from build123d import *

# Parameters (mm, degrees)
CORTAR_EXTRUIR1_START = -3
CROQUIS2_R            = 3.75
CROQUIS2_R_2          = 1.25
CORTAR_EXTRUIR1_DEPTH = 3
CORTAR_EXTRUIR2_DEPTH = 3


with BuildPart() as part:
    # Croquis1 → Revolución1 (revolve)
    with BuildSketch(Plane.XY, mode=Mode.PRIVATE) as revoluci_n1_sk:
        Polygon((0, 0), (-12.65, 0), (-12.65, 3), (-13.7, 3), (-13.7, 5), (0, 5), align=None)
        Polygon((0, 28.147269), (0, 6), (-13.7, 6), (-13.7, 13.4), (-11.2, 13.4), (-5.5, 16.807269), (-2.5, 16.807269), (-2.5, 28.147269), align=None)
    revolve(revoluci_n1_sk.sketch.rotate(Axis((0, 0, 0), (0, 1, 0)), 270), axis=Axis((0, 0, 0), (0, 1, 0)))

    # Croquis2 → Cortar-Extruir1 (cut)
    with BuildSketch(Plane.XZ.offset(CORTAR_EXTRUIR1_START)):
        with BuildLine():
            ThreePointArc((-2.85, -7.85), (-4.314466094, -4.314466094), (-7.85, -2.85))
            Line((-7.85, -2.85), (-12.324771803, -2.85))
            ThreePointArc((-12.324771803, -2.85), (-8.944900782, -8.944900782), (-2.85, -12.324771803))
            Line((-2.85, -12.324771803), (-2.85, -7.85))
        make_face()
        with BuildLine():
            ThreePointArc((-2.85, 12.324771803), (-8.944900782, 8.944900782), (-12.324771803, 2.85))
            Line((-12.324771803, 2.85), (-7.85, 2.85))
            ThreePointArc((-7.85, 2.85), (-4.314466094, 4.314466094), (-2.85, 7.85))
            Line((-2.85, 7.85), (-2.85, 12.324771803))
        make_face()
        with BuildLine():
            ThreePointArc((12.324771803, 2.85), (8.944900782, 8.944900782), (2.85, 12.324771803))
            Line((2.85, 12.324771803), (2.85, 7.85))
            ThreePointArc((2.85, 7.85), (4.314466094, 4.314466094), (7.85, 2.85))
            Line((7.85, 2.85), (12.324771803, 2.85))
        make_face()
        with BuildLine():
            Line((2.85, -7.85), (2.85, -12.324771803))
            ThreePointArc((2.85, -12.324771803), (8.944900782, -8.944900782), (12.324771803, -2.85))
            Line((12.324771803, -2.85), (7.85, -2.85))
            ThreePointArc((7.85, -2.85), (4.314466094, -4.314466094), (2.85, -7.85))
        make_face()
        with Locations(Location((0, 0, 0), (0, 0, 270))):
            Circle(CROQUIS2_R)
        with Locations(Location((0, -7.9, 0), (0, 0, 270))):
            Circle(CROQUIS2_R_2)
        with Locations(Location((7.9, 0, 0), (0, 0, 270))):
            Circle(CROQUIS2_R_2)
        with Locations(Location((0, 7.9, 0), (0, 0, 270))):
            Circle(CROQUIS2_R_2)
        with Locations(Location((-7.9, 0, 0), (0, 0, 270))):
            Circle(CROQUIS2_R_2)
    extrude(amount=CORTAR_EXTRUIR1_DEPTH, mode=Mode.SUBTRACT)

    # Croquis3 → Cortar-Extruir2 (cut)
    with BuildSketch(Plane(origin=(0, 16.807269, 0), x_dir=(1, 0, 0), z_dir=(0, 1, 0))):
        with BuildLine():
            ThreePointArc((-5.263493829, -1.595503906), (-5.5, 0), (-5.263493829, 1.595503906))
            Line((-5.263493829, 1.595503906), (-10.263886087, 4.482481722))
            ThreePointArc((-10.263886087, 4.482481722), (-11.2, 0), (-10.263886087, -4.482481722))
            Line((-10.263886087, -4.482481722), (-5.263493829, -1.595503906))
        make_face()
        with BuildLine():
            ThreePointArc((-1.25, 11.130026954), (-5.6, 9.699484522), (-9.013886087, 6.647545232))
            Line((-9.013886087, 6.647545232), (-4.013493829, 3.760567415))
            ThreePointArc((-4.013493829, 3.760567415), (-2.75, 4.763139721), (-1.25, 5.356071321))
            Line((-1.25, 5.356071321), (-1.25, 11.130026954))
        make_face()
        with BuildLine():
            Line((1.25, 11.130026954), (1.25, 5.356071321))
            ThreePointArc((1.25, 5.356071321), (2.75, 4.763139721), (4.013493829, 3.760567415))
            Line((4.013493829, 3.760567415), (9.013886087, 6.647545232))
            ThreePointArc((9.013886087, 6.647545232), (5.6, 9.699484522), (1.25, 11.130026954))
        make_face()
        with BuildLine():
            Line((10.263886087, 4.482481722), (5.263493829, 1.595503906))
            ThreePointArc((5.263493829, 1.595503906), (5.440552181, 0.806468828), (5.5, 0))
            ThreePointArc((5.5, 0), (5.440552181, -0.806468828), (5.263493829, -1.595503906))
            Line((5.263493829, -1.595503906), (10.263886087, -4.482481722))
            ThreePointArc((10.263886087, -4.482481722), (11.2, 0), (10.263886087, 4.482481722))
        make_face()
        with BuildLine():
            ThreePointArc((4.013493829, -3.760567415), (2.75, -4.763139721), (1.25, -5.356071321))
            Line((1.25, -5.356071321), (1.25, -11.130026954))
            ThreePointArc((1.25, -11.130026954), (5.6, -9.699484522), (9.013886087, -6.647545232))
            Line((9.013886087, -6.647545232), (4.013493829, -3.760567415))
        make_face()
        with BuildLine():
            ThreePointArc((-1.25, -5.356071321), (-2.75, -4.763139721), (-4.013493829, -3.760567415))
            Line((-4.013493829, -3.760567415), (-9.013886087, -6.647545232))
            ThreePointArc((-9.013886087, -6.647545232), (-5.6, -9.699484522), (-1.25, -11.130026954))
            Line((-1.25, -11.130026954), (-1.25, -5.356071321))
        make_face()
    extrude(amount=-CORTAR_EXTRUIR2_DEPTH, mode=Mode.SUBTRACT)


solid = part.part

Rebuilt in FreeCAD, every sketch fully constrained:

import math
import FreeCAD as App
import Part
import Sketcher

V = App.Vector
Q = App.Units.Quantity

doc = App.newDocument("Part")
body = doc.addObject("PartDesign::Body", "Body")
body.AllowCompound = True

# Sketch on XY plane
sketch1 = body.newObject("Sketcher::SketchObject", "Sketch")
sketch1.AttachmentSupport = (doc.getObject("XY_Plane"), [""])
sketch1.MapMode = "FlatFace"
sketch1.addGeometry(Part.LineSegment(V(-12.7, 0, 0), V(0, 0, 0)), False)
sketch1.addGeometry(Part.LineSegment(V(0, 0, 0), V(0, 5, 0)), False)
sketch1.addGeometry(Part.LineSegment(V(0, 5, 0), V(-13.7, 5, 0)), False)
sketch1.addGeometry(Part.LineSegment(V(-13.7, 5, 0), V(-13.7, 3, 0)), False)
sketch1.addGeometry(Part.LineSegment(V(-13.7, 3, 0), V(-12.7, 3, 0)), False)
sketch1.addGeometry(Part.LineSegment(V(-12.7, 3, 0), V(-12.7, 0, 0)), False)
sketch1.addGeometry(Part.LineSegment(V(0, 6, 0), V(0, 28.1, 0)), False)
sketch1.addGeometry(Part.LineSegment(V(0, 28.1, 0), V(-2.5, 28.1, 0)), False)
sketch1.addGeometry(Part.LineSegment(V(-2.5, 28.1, 0), V(-2.5, 16.8, 0)), False)
sketch1.addGeometry(Part.LineSegment(V(-2.5, 16.8, 0), V(-5.5, 16.8, 0)), False)
sketch1.addGeometry(Part.LineSegment(V(-5.5, 16.8, 0), V(-11.2, 13.4, 0)), False)
sketch1.addGeometry(Part.LineSegment(V(-11.2, 13.4, 0), V(-13.7, 13.4, 0)), False)
sketch1.addGeometry(Part.LineSegment(V(-13.7, 13.4, 0), V(-13.7, 6, 0)), False)
sketch1.addGeometry(Part.LineSegment(V(-13.7, 6, 0), V(0, 6, 0)), False)
sketch1.addConstraint(Sketcher.Constraint("Coincident", 0, 2, 1, 1))
sketch1.addConstraint(Sketcher.Constraint("Coincident", 1, 2, 2, 1))
sketch1.addConstraint(Sketcher.Constraint("Coincident", 2, 2, 3, 1))
sketch1.addConstraint(Sketcher.Constraint("Coincident", 3, 2, 4, 1))
sketch1.addConstraint(Sketcher.Constraint("Coincident", 4, 2, 5, 1))
sketch1.addConstraint(Sketcher.Constraint("Coincident", 5, 2, 0, 1))
sketch1.addConstraint(Sketcher.Constraint("Coincident", 6, 2, 7, 1))
sketch1.addConstraint(Sketcher.Constraint("Coincident", 7, 2, 8, 1))
sketch1.addConstraint(Sketcher.Constraint("Coincident", 8, 2, 9, 1))
sketch1.addConstraint(Sketcher.Constraint("Coincident", 9, 2, 10, 1))
sketch1.addConstraint(Sketcher.Constraint("Coincident", 10, 2, 11, 1))
sketch1.addConstraint(Sketcher.Constraint("Coincident", 11, 2, 12, 1))
sketch1.addConstraint(Sketcher.Constraint("Coincident", 12, 2, 13, 1))
sketch1.addConstraint(Sketcher.Constraint("Coincident", 13, 2, 6, 1))
sketch1.addConstraint(Sketcher.Constraint("Horizontal", 0))
sketch1.addConstraint(Sketcher.Constraint("Vertical", 1))
sketch1.addConstraint(Sketcher.Constraint("Horizontal", 2))
sketch1.addConstraint(Sketcher.Constraint("Vertical", 3))
sketch1.addConstraint(Sketcher.Constraint("Horizontal", 4))
sketch1.addConstraint(Sketcher.Constraint("Vertical", 5))
sketch1.addConstraint(Sketcher.Constraint("Vertical", 6))
sketch1.addConstraint(Sketcher.Constraint("Horizontal", 7))
sketch1.addConstraint(Sketcher.Constraint("Vertical", 8))
sketch1.addConstraint(Sketcher.Constraint("Horizontal", 9))
sketch1.addConstraint(Sketcher.Constraint("Horizontal", 11))
sketch1.addConstraint(Sketcher.Constraint("Vertical", 12))
sketch1.addConstraint(Sketcher.Constraint("Horizontal", 13))
sketch1.addConstraint(Sketcher.Constraint("Coincident", 0, 2, -1, 1))
sketch1.addConstraint(Sketcher.Constraint("PointOnObject", 6, 2, -2))
sketch1.addConstraint(Sketcher.Constraint("Vertical", 3, 2, 11, 2))
sketch1.addConstraint(Sketcher.Constraint("Equal", 7, 11))
sketch1.addConstraint(Sketcher.Constraint("Equal", 9, 5))
sketch1.addConstraint(Sketcher.Constraint("DistanceX", 9, 2, 9, 1, 3.0))
sketch1.addConstraint(Sketcher.Constraint("DistanceY", 1, 1, 1, 2, 5.0))
sketch1.addConstraint(Sketcher.Constraint("DistanceX", 2, 2, 2, 1, 13.7))
sketch1.addConstraint(Sketcher.Constraint("DistanceX", 7, 2, 7, 1, 2.5))
sketch1.addConstraint(Sketcher.Constraint("DistanceY", 12, 2, 12, 1, 7.4))
sketch1.addConstraint(Sketcher.Constraint("DistanceY", -1, 1, 12, 2, 6.0))
sketch1.addConstraint(Sketcher.Constraint("DistanceX", 0, 1, 0, 2, 12.65))
sketch1.addConstraint(Sketcher.Constraint("DistanceY", 8, 2, 8, 1, 11.34))
sketch1.addConstraint(Sketcher.Constraint("DistanceY", 6, 1, 6, 2, 22.147269))
revolution = body.newObject("PartDesign::Revolution", "Revolution")
revolution.Profile = sketch1
revolution.ReferenceAxis = (sketch1, ["V_Axis"])
revolution.Angle = 360

# Sketch on XZ plane
sketch2 = body.newObject("Sketcher::SketchObject", "Sketch001")
sketch2.AttachmentSupport = (doc.getObject("XZ_Plane"), [""])
sketch2.MapMode = "FlatFace"
sketch2.AttachmentOffset = App.Placement(V(0, 0, -3), App.Rotation())
sketch2.addGeometry(Part.ArcOfCircle(Part.Circle(V(-7.8, -7.8, 0), V(0, 0, 1), 5), math.radians(0), math.radians(90)), False)
sketch2.addGeometry(Part.LineSegment(V(-7.8, -2.9, 0), V(-12.3, -2.9, 0)), False)
sketch2.addGeometry(Part.ArcOfCircle(Part.Circle(V(0, 0, 0), V(0, 0, 1), 12.6), math.radians(-167), math.radians(-103)), False)
sketch2.addGeometry(Part.LineSegment(V(-2.9, -12.3, 0), V(-2.9, -7.8, 0)), False)
sketch2.addGeometry(Part.ArcOfCircle(Part.Circle(V(0, 0, 0), V(0, 0, 1), 12.6), math.radians(103), math.radians(167)), False)
sketch2.addGeometry(Part.LineSegment(V(-12.3, 2.9, 0), V(-7.8, 2.9, 0)), False)
sketch2.addGeometry(Part.ArcOfCircle(Part.Circle(V(-7.8, 7.8, 0), V(0, 0, 1), 5), math.radians(-90), math.radians(0)), False)
sketch2.addGeometry(Part.LineSegment(V(-2.9, 7.8, 0), V(-2.9, 12.3, 0)), False)
sketch2.addGeometry(Part.ArcOfCircle(Part.Circle(V(0, 0, 0), V(0, 0, 1), 12.6), math.radians(13), math.radians(77)), False)
sketch2.addGeometry(Part.LineSegment(V(2.9, 12.3, 0), V(2.9, 7.8, 0)), False)
sketch2.addGeometry(Part.ArcOfCircle(Part.Circle(V(7.8, 7.8, 0), V(0, 0, 1), 5), math.radians(180), math.radians(270)), False)
sketch2.addGeometry(Part.LineSegment(V(7.8, 2.9, 0), V(12.3, 2.9, 0)), False)
sketch2.addGeometry(Part.LineSegment(V(2.9, -7.8, 0), V(2.9, -12.3, 0)), False)
sketch2.addGeometry(Part.ArcOfCircle(Part.Circle(V(0, 0, 0), V(0, 0, 1), 12.6), math.radians(-77), math.radians(-13)), False)
sketch2.addGeometry(Part.LineSegment(V(12.3, -2.9, 0), V(7.8, -2.9, 0)), False)
sketch2.addGeometry(Part.ArcOfCircle(Part.Circle(V(7.8, -7.8, 0), V(0, 0, 1), 5), math.radians(90), math.radians(180)), False)
sketch2.addGeometry(Part.Circle(V(0, 0, 0), V(0, 0, 1), 3.8), False)
sketch2.addGeometry(Part.Circle(V(0, -7.9, 0), V(0, 0, 1), 1.2), False)
sketch2.addGeometry(Part.Circle(V(7.9, 0, 0), V(0, 0, 1), 1.2), False)
sketch2.addGeometry(Part.Circle(V(0, 7.9, 0), V(0, 0, 1), 1.2), False)
sketch2.addGeometry(Part.Circle(V(-7.9, 0, 0), V(0, 0, 1), 1.2), False)
sketch2.addConstraint(Sketcher.Constraint("Tangent", 0, 2, 1, 1))
sketch2.addConstraint(Sketcher.Constraint("Coincident", 1, 2, 2, 1))
sketch2.addConstraint(Sketcher.Constraint("Coincident", 2, 2, 3, 1))
sketch2.addConstraint(Sketcher.Constraint("Tangent", 3, 2, 0, 1))
sketch2.addConstraint(Sketcher.Constraint("Coincident", 4, 2, 5, 1))
sketch2.addConstraint(Sketcher.Constraint("Tangent", 5, 2, 6, 1))
sketch2.addConstraint(Sketcher.Constraint("Tangent", 6, 2, 7, 1))
sketch2.addConstraint(Sketcher.Constraint("Coincident", 7, 2, 4, 1))
sketch2.addConstraint(Sketcher.Constraint("Coincident", 8, 2, 9, 1))
sketch2.addConstraint(Sketcher.Constraint("Tangent", 9, 2, 10, 1))
sketch2.addConstraint(Sketcher.Constraint("Tangent", 10, 2, 11, 1))
sketch2.addConstraint(Sketcher.Constraint("Coincident", 11, 2, 8, 1))
sketch2.addConstraint(Sketcher.Constraint("Coincident", 12, 2, 13, 1))
sketch2.addConstraint(Sketcher.Constraint("Coincident", 13, 2, 14, 1))
sketch2.addConstraint(Sketcher.Constraint("Tangent", 14, 2, 15, 1))
sketch2.addConstraint(Sketcher.Constraint("Tangent", 15, 2, 12, 1))
sketch2.addConstraint(Sketcher.Constraint("Horizontal", 1))
sketch2.addConstraint(Sketcher.Constraint("Vertical", 3))
sketch2.addConstraint(Sketcher.Constraint("Horizontal", 5))
sketch2.addConstraint(Sketcher.Constraint("Vertical", 7))
sketch2.addConstraint(Sketcher.Constraint("Vertical", 9))
sketch2.addConstraint(Sketcher.Constraint("Horizontal", 11))
sketch2.addConstraint(Sketcher.Constraint("Vertical", 12))
sketch2.addConstraint(Sketcher.Constraint("Horizontal", 14))
sketch2.addConstraint(Sketcher.Constraint("Coincident", 2, 3, -1, 1))
sketch2.addConstraint(Sketcher.Constraint("Coincident", 4, 3, -1, 1))
sketch2.addConstraint(Sketcher.Constraint("Coincident", 8, 3, -1, 1))
sketch2.addConstraint(Sketcher.Constraint("Coincident", 13, 3, -1, 1))
sketch2.addConstraint(Sketcher.Constraint("Coincident", 16, 3, -1, 1))
sketch2.addConstraint(Sketcher.Constraint("Equal", 2, 4))
sketch2.addConstraint(Sketcher.Constraint("Equal", 0, 6))
sketch2.addConstraint(Sketcher.Constraint("Equal", 4, 8))
sketch2.addConstraint(Sketcher.Constraint("Equal", 6, 10))
sketch2.addConstraint(Sketcher.Constraint("Equal", 8, 13))
sketch2.addConstraint(Sketcher.Constraint("Equal", 10, 15))
sketch2.addConstraint(Sketcher.Constraint("Equal", 17, 18))
sketch2.addConstraint(Sketcher.Constraint("Equal", 18, 19))
sketch2.addConstraint(Sketcher.Constraint("Equal", 19, 20))
sketch2.addConstraint(Sketcher.Constraint("Symmetric", 0, 3, 10, 3, -1, 1))
sketch2.addConstraint(Sketcher.Constraint("Symmetric", 6, 3, 15, 3, -1, 1))
sketch2.addConstraint(Sketcher.Constraint("Symmetric", 17, 3, 19, 3, -1, 1))
sketch2.addConstraint(Sketcher.Constraint("Symmetric", 18, 3, 20, 3, -1, 1))
sketch2.addConstraint(Sketcher.Constraint("Symmetric", 6, 3, 10, 3, -2))
sketch2.addConstraint(Sketcher.Constraint("PointOnObject", 17, 3, -2))
sketch2.addConstraint(Sketcher.Constraint("PointOnObject", 18, 3, -1))
sketch2.addConstraint(Sketcher.Constraint("Equal", 14, 3))
sketch2.addConstraint(Sketcher.Constraint("Radius", 0, 5.0))
sketch2.addConstraint(Sketcher.Constraint("Diameter", 16, 7.5))
sketch2.addConstraint(Sketcher.Constraint("Diameter", 17, 2.5))
sketch2.addConstraint(Sketcher.Constraint("Radius", 2, 12.65))
sketch2.addConstraint(Sketcher.Constraint("DistanceY", 17, 3, -1, 1, 7.9))
sketch2.addConstraint(Sketcher.Constraint("DistanceX", -1, 1, 18, 3, 7.9))
sketch2.addConstraint(Sketcher.Constraint("DistanceY", 0, 3, 6, 3, 15.7))
pocket1 = body.newObject("PartDesign::Pocket", "Pocket")
pocket1.Profile = sketch2
pocket1.Length = 3
pocket1.Reversed = True

# Sketch on XZ plane
sketch3 = body.newObject("Sketcher::SketchObject", "Sketch002")
sketch3.AttachmentSupport = (doc.getObject("XZ_Plane"), [""])
sketch3.MapMode = "FlatFace"
sketch3.AttachmentOffset = App.Placement(V(0, 0, -16.807269), App.Rotation())
sketch3.addGeometry(Part.ArcOfCircle(Part.Circle(V(0, 0, 0), V(0, 0, 1), 5.5), math.radians(163), math.radians(197)), False)
sketch3.addGeometry(Part.LineSegment(V(-5.3, -1.6, 0), V(-10.3, -4.5, 0)), False)
sketch3.addGeometry(Part.ArcOfCircle(Part.Circle(V(0, 0, 0), V(0, 0, 1), 11.2), math.radians(156), math.radians(204)), False)
sketch3.addGeometry(Part.LineSegment(V(-10.3, 4.5, 0), V(-5.3, 1.6, 0)), False)
sketch3.addGeometry(Part.ArcOfCircle(Part.Circle(V(0, 0, 0), V(0, 0, 1), 11.2), math.radians(-144), math.radians(-96)), False)
sketch3.addGeometry(Part.LineSegment(V(-9, -6.6, 0), V(-4, -3.8, 0)), False)
sketch3.addGeometry(Part.ArcOfCircle(Part.Circle(V(0, 0, 0), V(0, 0, 1), 5.5), math.radians(-137), math.radians(-103)), False)
sketch3.addGeometry(Part.LineSegment(V(-1.2, -5.4, 0), V(-1.2, -11.1, 0)), False)
sketch3.addGeometry(Part.LineSegment(V(1.2, -11.1, 0), V(1.2, -5.4, 0)), False)
sketch3.addGeometry(Part.ArcOfCircle(Part.Circle(V(0, 0, 0), V(0, 0, 1), 5.5), math.radians(-77), math.radians(-43)), False)
sketch3.addGeometry(Part.LineSegment(V(4, -3.8, 0), V(9, -6.6, 0)), False)
sketch3.addGeometry(Part.ArcOfCircle(Part.Circle(V(0, 0, 0), V(0, 0, 1), 11.2), math.radians(-84), math.radians(-36)), False)
sketch3.addGeometry(Part.LineSegment(V(10.3, -4.5, 0), V(5.3, -1.6, 0)), False)
sketch3.addGeometry(Part.ArcOfCircle(Part.Circle(V(0, 0, 0), V(0, 0, 1), 5.5), math.radians(-16.86), math.radians(0)), False)
sketch3.addGeometry(Part.ArcOfCircle(Part.Circle(V(0, 0, 0), V(0, 0, 1), 5.5), math.radians(0), math.radians(16.86)), False)
sketch3.addGeometry(Part.LineSegment(V(5.3, 1.6, 0), V(10.3, 4.5, 0)), False)
sketch3.addGeometry(Part.ArcOfCircle(Part.Circle(V(0, 0, 0), V(0, 0, 1), 11.2), math.radians(-24), math.radians(24)), False)
sketch3.addGeometry(Part.ArcOfCircle(Part.Circle(V(0, 0, 0), V(0, 0, 1), 5.5), math.radians(43), math.radians(77)), False)
sketch3.addGeometry(Part.LineSegment(V(1.2, 5.4, 0), V(1.2, 11.1, 0)), False)
sketch3.addGeometry(Part.ArcOfCircle(Part.Circle(V(0, 0, 0), V(0, 0, 1), 11.2), math.radians(36), math.radians(84)), False)
sketch3.addGeometry(Part.LineSegment(V(9, 6.6, 0), V(4, 3.8, 0)), False)
sketch3.addGeometry(Part.ArcOfCircle(Part.Circle(V(0, 0, 0), V(0, 0, 1), 5.5), math.radians(103), math.radians(137)), False)
sketch3.addGeometry(Part.LineSegment(V(-4, 3.8, 0), V(-9, 6.6, 0)), False)
sketch3.addGeometry(Part.ArcOfCircle(Part.Circle(V(0, 0, 0), V(0, 0, 1), 11.2), math.radians(96), math.radians(144)), False)
sketch3.addGeometry(Part.LineSegment(V(-1.2, 11.1, 0), V(-1.2, 5.4, 0)), False)
sketch3.addConstraint(Sketcher.Constraint("Coincident", 0, 2, 1, 1))
sketch3.addConstraint(Sketcher.Constraint("Coincident", 1, 2, 2, 2))
sketch3.addConstraint(Sketcher.Constraint("Coincident", 2, 1, 3, 1))
sketch3.addConstraint(Sketcher.Constraint("Coincident", 3, 2, 0, 1))
sketch3.addConstraint(Sketcher.Constraint("Coincident", 4, 1, 5, 1))
sketch3.addConstraint(Sketcher.Constraint("Coincident", 5, 2, 6, 1))
sketch3.addConstraint(Sketcher.Constraint("Coincident", 6, 2, 7, 1))
sketch3.addConstraint(Sketcher.Constraint("Coincident", 7, 2, 4, 2))
sketch3.addConstraint(Sketcher.Constraint("Coincident", 8, 2, 9, 1))
sketch3.addConstraint(Sketcher.Constraint("Coincident", 9, 2, 10, 1))
sketch3.addConstraint(Sketcher.Constraint("Coincident", 10, 2, 11, 2))
sketch3.addConstraint(Sketcher.Constraint("Coincident", 11, 1, 8, 1))
sketch3.addConstraint(Sketcher.Constraint("Coincident", 12, 2, 13, 1))
sketch3.addConstraint(Sketcher.Constraint("Tangent", 13, 2, 14, 1))
sketch3.addConstraint(Sketcher.Constraint("Coincident", 14, 2, 15, 1))
sketch3.addConstraint(Sketcher.Constraint("Coincident", 15, 2, 16, 2))
sketch3.addConstraint(Sketcher.Constraint("Coincident", 16, 1, 12, 1))
sketch3.addConstraint(Sketcher.Constraint("Coincident", 17, 2, 18, 1))
sketch3.addConstraint(Sketcher.Constraint("Coincident", 18, 2, 19, 2))
sketch3.addConstraint(Sketcher.Constraint("Coincident", 19, 1, 20, 1))
sketch3.addConstraint(Sketcher.Constraint("Coincident", 20, 2, 17, 1))
sketch3.addConstraint(Sketcher.Constraint("Coincident", 21, 2, 22, 1))
sketch3.addConstraint(Sketcher.Constraint("Coincident", 22, 2, 23, 2))
sketch3.addConstraint(Sketcher.Constraint("Coincident", 23, 1, 24, 1))
sketch3.addConstraint(Sketcher.Constraint("Coincident", 24, 2, 21, 1))
sketch3.addConstraint(Sketcher.Constraint("Vertical", 7))
sketch3.addConstraint(Sketcher.Constraint("Vertical", 8))
sketch3.addConstraint(Sketcher.Constraint("Vertical", 18))
sketch3.addConstraint(Sketcher.Constraint("Vertical", 24))
sketch3.addConstraint(Sketcher.Constraint("Coincident", 0, 3, -1, 1))
sketch3.addConstraint(Sketcher.Constraint("Coincident", 2, 3, -1, 1))
sketch3.addConstraint(Sketcher.Constraint("Coincident", 4, 3, -1, 1))
sketch3.addConstraint(Sketcher.Constraint("Coincident", 6, 3, -1, 1))
sketch3.addConstraint(Sketcher.Constraint("Coincident", 9, 3, -1, 1))
sketch3.addConstraint(Sketcher.Constraint("Coincident", 11, 3, -1, 1))
sketch3.addConstraint(Sketcher.Constraint("Coincident", 13, 3, -1, 1))
sketch3.addConstraint(Sketcher.Constraint("Coincident", 16, 3, -1, 1))
sketch3.addConstraint(Sketcher.Constraint("Coincident", 17, 3, -1, 1))
sketch3.addConstraint(Sketcher.Constraint("Coincident", 19, 3, -1, 1))
sketch3.addConstraint(Sketcher.Constraint("Coincident", 21, 3, -1, 1))
sketch3.addConstraint(Sketcher.Constraint("Coincident", 23, 3, -1, 1))
sketch3.addConstraint(Sketcher.Constraint("Equal", 2, 4))
sketch3.addConstraint(Sketcher.Constraint("Equal", 0, 6))
sketch3.addConstraint(Sketcher.Constraint("Equal", 6, 9))
sketch3.addConstraint(Sketcher.Constraint("Equal", 4, 11))
sketch3.addConstraint(Sketcher.Constraint("Equal", 9, 13))
sketch3.addConstraint(Sketcher.Constraint("Equal", 13, 14))
sketch3.addConstraint(Sketcher.Constraint("Equal", 11, 16))
sketch3.addConstraint(Sketcher.Constraint("Equal", 14, 17))
sketch3.addConstraint(Sketcher.Constraint("Equal", 16, 19))
sketch3.addConstraint(Sketcher.Constraint("Equal", 17, 21))
sketch3.addConstraint(Sketcher.Constraint("Equal", 19, 23))
sketch3.addConstraint(Sketcher.Constraint("PointOnObject", 13, 2, -1))
sketch3.addConstraint(Sketcher.Constraint("Parallel", 1, 5))
sketch3.addConstraint(Sketcher.Constraint("Parallel", 3, 10))
sketch3.addConstraint(Sketcher.Constraint("Parallel", 10, 12))
sketch3.addConstraint(Sketcher.Constraint("Parallel", 5, 15))
sketch3.addConstraint(Sketcher.Constraint("Parallel", 15, 20))
sketch3.addConstraint(Sketcher.Constraint("Parallel", 12, 22))
sketch3.addConstraint(Sketcher.Constraint("Horizontal", 6, 2, 8, 2))
sketch3.addConstraint(Sketcher.Constraint("Horizontal", 5, 2, 9, 2))
sketch3.addConstraint(Sketcher.Constraint("Horizontal", 4, 1, 10, 2))
sketch3.addConstraint(Sketcher.Constraint("Horizontal", 0, 2, 12, 2))
sketch3.addConstraint(Sketcher.Constraint("Horizontal", 3, 2, 14, 2))
sketch3.addConstraint(Sketcher.Constraint("Horizontal", 20, 2, 21, 2))
sketch3.addConstraint(Sketcher.Constraint("Horizontal", 18, 2, 23, 1))
sketch3.addConstraint(Sketcher.Constraint("Vertical", 1, 2, 2, 1))
sketch3.addConstraint(Sketcher.Constraint("Vertical", 11, 1, 17, 2))
sketch3.addConstraint(Sketcher.Constraint("Vertical", 10, 2, 19, 1))
sketch3.addConstraint(Sketcher.Constraint("Equal", 3, 5))
sketch3.addConstraint(Sketcher.Constraint("Radius", 0, 5.5))
sketch3.addConstraint(Sketcher.Constraint("Radius", 2, 11.2))
sketch3.addConstraint(Sketcher.Constraint("Angle", 1, Q("-150 deg")))
sketch3.addConstraint(Sketcher.Constraint("DistanceX", 6, 2, 8, 2, 2.5))
sketch3.addConstraint(Sketcher.Constraint("DistanceX", 1, 2, 4, 1, 1.25))
pocket2 = body.newObject("PartDesign::Pocket", "Pocket001")
pocket2.Profile = sketch3
pocket2.Length = 3
pocket2.Reversed = True

doc.recompute()
